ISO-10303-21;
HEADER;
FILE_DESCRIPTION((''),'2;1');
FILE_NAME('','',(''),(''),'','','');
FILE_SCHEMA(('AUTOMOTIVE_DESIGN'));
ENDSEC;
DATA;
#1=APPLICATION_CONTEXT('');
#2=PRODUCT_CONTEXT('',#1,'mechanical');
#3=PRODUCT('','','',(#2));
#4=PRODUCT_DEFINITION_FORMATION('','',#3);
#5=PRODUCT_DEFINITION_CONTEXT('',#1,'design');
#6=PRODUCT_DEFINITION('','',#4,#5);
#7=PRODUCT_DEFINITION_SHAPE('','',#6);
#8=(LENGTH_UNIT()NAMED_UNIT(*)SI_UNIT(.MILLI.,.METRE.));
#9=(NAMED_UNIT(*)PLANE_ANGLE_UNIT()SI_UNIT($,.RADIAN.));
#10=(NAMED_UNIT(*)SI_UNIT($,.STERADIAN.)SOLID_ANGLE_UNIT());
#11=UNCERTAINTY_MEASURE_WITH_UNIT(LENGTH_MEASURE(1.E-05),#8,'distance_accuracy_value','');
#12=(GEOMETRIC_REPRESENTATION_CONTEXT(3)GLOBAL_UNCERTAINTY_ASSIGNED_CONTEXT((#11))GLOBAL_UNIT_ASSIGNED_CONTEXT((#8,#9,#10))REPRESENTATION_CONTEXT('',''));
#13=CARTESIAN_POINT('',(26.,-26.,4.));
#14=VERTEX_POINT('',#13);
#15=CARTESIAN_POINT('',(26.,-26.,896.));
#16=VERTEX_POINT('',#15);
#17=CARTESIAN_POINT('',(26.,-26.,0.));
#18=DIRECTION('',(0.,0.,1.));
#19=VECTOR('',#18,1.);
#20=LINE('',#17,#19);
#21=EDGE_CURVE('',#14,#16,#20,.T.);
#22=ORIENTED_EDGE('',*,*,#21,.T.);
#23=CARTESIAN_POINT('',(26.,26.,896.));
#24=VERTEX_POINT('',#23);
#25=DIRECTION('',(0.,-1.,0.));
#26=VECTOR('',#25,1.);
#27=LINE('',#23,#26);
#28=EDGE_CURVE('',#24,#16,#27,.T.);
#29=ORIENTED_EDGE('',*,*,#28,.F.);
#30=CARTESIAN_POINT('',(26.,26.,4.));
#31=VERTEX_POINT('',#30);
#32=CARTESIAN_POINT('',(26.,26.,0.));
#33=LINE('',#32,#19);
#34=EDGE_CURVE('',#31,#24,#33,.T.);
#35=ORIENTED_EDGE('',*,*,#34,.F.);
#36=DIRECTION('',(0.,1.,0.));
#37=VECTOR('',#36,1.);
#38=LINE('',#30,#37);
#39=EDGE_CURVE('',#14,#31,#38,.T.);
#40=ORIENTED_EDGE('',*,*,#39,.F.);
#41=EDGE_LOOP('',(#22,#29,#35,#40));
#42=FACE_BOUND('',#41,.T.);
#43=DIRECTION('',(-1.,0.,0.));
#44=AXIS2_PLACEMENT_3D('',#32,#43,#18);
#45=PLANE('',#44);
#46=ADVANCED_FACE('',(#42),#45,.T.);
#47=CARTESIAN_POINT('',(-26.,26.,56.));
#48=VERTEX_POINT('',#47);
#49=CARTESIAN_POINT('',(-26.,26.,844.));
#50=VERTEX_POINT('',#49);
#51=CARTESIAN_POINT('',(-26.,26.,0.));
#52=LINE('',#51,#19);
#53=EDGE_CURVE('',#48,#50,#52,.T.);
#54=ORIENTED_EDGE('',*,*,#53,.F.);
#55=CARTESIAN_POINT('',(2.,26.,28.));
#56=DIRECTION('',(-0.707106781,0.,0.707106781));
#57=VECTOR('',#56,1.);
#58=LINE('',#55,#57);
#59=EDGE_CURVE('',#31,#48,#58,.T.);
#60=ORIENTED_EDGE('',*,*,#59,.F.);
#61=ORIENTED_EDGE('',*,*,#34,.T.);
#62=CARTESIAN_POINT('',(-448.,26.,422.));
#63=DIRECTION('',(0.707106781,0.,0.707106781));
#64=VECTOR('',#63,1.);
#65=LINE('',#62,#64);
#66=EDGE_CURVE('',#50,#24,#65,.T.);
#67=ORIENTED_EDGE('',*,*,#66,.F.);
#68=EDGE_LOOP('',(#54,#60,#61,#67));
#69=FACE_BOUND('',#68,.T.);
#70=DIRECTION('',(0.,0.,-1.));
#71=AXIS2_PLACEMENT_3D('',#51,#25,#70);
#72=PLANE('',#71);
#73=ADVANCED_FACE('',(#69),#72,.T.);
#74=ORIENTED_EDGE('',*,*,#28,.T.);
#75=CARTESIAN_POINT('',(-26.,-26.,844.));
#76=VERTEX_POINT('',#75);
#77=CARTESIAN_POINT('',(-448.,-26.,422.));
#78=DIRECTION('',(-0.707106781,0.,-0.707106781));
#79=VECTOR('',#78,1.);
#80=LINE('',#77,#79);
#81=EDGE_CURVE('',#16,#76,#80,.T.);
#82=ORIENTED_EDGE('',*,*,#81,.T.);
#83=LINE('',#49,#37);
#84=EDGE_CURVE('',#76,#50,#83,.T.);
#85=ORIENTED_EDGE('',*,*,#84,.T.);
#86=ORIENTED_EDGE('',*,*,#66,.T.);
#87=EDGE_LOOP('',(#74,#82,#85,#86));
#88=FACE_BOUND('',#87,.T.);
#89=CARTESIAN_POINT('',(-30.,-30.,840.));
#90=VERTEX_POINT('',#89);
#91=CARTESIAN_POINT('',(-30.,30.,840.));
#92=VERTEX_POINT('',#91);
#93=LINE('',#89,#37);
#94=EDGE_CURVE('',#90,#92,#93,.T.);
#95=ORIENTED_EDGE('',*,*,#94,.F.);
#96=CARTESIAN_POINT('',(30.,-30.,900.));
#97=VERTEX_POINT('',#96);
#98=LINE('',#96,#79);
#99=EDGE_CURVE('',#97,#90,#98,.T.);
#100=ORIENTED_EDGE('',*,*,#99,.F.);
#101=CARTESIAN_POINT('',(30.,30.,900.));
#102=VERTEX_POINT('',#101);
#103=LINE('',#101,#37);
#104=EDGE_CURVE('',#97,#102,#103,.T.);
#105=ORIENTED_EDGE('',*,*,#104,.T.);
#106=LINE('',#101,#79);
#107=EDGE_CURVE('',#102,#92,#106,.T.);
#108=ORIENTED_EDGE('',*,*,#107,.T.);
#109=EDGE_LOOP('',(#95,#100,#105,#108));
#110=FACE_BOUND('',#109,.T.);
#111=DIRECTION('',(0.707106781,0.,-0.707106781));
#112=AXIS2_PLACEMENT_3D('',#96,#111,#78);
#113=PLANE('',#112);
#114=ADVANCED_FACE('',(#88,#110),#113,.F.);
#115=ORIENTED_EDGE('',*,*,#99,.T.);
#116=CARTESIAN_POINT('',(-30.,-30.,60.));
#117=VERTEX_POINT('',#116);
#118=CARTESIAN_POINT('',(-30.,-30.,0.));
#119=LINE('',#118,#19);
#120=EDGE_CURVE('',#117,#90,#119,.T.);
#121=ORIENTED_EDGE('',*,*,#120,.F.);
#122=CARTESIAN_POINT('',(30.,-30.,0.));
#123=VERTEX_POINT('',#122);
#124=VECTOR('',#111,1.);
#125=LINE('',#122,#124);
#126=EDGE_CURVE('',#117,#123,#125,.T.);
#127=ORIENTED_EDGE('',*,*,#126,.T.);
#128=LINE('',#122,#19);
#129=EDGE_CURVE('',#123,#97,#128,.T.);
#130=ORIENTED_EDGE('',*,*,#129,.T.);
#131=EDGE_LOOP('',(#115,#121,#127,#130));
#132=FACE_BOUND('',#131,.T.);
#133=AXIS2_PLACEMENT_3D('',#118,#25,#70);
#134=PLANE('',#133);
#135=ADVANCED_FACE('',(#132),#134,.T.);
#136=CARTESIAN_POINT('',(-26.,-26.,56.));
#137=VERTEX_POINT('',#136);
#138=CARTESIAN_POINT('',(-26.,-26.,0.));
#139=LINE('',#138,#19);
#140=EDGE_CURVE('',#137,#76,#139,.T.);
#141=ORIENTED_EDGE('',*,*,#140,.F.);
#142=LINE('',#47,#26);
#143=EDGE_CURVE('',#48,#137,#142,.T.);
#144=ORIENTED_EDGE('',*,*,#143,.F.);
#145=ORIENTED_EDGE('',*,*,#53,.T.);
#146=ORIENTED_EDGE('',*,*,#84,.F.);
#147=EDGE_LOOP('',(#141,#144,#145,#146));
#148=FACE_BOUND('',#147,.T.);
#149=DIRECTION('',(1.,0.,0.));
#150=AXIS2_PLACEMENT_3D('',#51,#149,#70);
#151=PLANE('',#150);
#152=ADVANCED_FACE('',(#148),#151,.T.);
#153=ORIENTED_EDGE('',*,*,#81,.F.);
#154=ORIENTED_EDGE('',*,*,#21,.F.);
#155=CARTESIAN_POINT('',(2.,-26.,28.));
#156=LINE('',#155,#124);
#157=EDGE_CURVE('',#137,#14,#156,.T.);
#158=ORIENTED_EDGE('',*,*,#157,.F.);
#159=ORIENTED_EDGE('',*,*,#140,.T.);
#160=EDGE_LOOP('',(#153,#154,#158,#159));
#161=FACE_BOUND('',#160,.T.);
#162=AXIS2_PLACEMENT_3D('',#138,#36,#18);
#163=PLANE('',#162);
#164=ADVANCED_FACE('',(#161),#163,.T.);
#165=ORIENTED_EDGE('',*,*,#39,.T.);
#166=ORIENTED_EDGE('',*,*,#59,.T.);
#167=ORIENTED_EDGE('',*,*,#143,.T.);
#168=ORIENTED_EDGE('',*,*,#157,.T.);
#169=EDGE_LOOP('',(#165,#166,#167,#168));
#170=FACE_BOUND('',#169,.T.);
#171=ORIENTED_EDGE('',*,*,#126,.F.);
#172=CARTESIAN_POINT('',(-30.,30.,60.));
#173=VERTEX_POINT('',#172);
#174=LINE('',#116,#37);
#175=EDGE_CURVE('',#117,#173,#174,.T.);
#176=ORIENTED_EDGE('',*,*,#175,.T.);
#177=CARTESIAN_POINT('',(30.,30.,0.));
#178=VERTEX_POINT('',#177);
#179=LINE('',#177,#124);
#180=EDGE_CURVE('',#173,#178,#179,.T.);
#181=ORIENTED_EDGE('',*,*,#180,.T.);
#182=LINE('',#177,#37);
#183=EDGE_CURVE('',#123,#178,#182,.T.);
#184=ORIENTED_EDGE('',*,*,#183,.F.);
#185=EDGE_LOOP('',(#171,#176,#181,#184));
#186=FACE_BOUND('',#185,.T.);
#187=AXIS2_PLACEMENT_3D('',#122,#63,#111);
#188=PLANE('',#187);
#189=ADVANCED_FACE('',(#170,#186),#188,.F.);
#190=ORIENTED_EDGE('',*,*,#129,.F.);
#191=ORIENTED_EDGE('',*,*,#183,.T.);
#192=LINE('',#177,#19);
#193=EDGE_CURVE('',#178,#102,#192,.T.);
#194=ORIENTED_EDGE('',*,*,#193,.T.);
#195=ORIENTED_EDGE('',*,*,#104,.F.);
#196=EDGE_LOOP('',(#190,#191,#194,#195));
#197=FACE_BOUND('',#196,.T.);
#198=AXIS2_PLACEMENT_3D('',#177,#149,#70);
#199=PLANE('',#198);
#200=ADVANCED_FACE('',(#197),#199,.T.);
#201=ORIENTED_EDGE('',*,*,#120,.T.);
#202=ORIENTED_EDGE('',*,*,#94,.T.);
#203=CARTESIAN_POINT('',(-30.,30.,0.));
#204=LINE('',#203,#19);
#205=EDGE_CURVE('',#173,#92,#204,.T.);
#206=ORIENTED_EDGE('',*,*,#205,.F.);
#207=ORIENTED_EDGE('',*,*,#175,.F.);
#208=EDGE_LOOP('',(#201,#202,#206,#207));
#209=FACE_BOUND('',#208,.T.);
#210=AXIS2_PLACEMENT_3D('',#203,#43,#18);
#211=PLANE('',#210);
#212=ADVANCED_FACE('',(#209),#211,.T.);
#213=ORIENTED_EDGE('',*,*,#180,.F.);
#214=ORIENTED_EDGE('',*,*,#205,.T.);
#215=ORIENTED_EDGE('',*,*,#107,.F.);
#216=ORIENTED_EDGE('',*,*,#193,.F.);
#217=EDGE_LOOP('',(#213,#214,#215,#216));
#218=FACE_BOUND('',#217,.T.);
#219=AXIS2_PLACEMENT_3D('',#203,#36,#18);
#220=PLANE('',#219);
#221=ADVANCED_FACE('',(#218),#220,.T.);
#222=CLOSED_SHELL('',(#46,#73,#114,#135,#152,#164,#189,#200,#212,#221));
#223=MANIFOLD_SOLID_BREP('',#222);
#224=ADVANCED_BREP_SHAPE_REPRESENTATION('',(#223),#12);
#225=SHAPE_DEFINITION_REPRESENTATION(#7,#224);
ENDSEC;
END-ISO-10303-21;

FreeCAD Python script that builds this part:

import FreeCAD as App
import Part
import Sketcher
from FreeCAD import Vector

doc = App.newDocument("Part")
body = doc.addObject("PartDesign::Body", "Body")

sketch1 = body.newObject("Sketcher::SketchObject", "Sketch")
sketch1.AttachmentSupport = (doc.getObject("XY_Plane"), [""])
sketch1.MapMode = "FlatFace"
sketch1.addGeometry(Part.LineSegment(Vector(-30, 30, 0), Vector(-30, -30, 0)), False)
sketch1.addGeometry(Part.LineSegment(Vector(-30, -30, 0), Vector(30, -30, 0)), False)
sketch1.addGeometry(Part.LineSegment(Vector(30, -30, 0), Vector(30, 30, 0)), False)
sketch1.addGeometry(Part.LineSegment(Vector(30, 30, 0), Vector(-30, 30, 0)), False)
sketch1.addGeometry(Part.LineSegment(Vector(26, -26, 0), Vector(-26, -26, 0)), False)
sketch1.addGeometry(Part.LineSegment(Vector(-26, -26, 0), Vector(-26, 26, 0)), False)
sketch1.addGeometry(Part.LineSegment(Vector(-26, 26, 0), Vector(26, 26, 0)), False)
sketch1.addGeometry(Part.LineSegment(Vector(26, 26, 0), Vector(26, -26, 0)), False)
sketch1.addConstraint(Sketcher.Constraint("Coincident", 0, 2, 1, 1))
sketch1.addConstraint(Sketcher.Constraint("Coincident", 1, 2, 2, 1))
sketch1.addConstraint(Sketcher.Constraint("Coincident", 2, 2, 3, 1))
sketch1.addConstraint(Sketcher.Constraint("Coincident", 3, 2, 0, 1))
sketch1.addConstraint(Sketcher.Constraint("Coincident", 4, 2, 5, 1))
sketch1.addConstraint(Sketcher.Constraint("Coincident", 5, 2, 6, 1))
sketch1.addConstraint(Sketcher.Constraint("Coincident", 6, 2, 7, 1))
sketch1.addConstraint(Sketcher.Constraint("Coincident", 7, 2, 4, 1))
sketch1.addConstraint(Sketcher.Constraint("Vertical", 0))
sketch1.addConstraint(Sketcher.Constraint("Horizontal", 1))
sketch1.addConstraint(Sketcher.Constraint("Vertical", 2))
sketch1.addConstraint(Sketcher.Constraint("Horizontal", 3))
sketch1.addConstraint(Sketcher.Constraint("Horizontal", 4))
sketch1.addConstraint(Sketcher.Constraint("Vertical", 5))
sketch1.addConstraint(Sketcher.Constraint("Horizontal", 6))
sketch1.addConstraint(Sketcher.Constraint("Vertical", 7))
sketch1.addConstraint(Sketcher.Constraint("Symmetric", 0, 2, 2, 2, -1, 1))
sketch1.addConstraint(Sketcher.Constraint("Symmetric", 4, 2, 6, 2, -1, 1))
sketch1.addConstraint(Sketcher.Constraint("Equal", 3, 0))
sketch1.addConstraint(Sketcher.Constraint("Equal", 6, 5))
sketch1.addConstraint(Sketcher.Constraint("DistanceX", 1, 1, 1, 2, 60.0))
sketch1.addConstraint(Sketcher.Constraint("DistanceX", 4, 2, 4, 1, 52.0))

sketch2 = body.newObject("Sketcher::SketchObject", "Sketch001")
sketch2.AttachmentSupport = (doc.getObject("XZ_Plane"), [""])
sketch2.MapMode = "FlatFace"
sketch2.addGeometry(Part.BSplineCurve([Vector(0, 0, 0), Vector(0, 900, 0)], [2, 2], [0, 1], False, 1, [1, 1], False), False)
sketch2.addConstraint(Sketcher.Constraint("Block", 0))
doc.recompute()

additivepipe = body.newObject("PartDesign::AdditivePipe", "AdditivePipe")
additivepipe.Profile = sketch1
additivepipe.Spine = (sketch2, ["Edge1"])

sketch3 = body.newObject("Sketcher::SketchObject", "Sketch002")
sketch3.AttachmentSupport = (doc.getObject("XZ_Plane"), [""])
sketch3.MapMode = "FlatFace"
sketch3.AttachmentOffset = App.Placement(Vector(0, 0, -30), App.Rotation())
sketch3.addGeometry(Part.LineSegment(Vector(-30, 60, 0), Vector(30, 0, 0)), False)
sketch3.addGeometry(Part.LineSegment(Vector(30, 0, 0), Vector(-30, 0, 0)), False)
sketch3.addGeometry(Part.LineSegment(Vector(-30, 0, 0), Vector(-30, 60, 0)), False)
sketch3.addGeometry(Part.LineSegment(Vector(30, 900, 0), Vector(-30, 840, 0)), False)
sketch3.addGeometry(Part.LineSegment(Vector(-30, 840, 0), Vector(-30, 900, 0)), False)
sketch3.addGeometry(Part.LineSegment(Vector(-30, 900, 0), Vector(30, 900, 0)), False)
sketch3.addConstraint(Sketcher.Constraint("Coincident", 0, 2, 1, 1))
sketch3.addConstraint(Sketcher.Constraint("Coincident", 1, 2, 2, 1))
sketch3.addConstraint(Sketcher.Constraint("Coincident", 2, 2, 0, 1))
sketch3.addConstraint(Sketcher.Constraint("Coincident", 3, 2, 4, 1))
sketch3.addConstraint(Sketcher.Constraint("Coincident", 4, 2, 5, 1))
sketch3.addConstraint(Sketcher.Constraint("Coincident", 5, 2, 3, 1))
sketch3.addConstraint(Sketcher.Constraint("Horizontal", 1))
sketch3.addConstraint(Sketcher.Constraint("Vertical", 2))
sketch3.addConstraint(Sketcher.Constraint("Vertical", 4))
sketch3.addConstraint(Sketcher.Constraint("Horizontal", 5))
sketch3.addConstraint(Sketcher.Constraint("Symmetric", 0, 2, 1, 2, -1, 1))
sketch3.addConstraint(Sketcher.Constraint("Perpendicular", 0, 3))
sketch3.addConstraint(Sketcher.Constraint("Vertical", 2, 2, 3, 2))
sketch3.addConstraint(Sketcher.Constraint("Vertical", 0, 2, 5, 2))
sketch3.addConstraint(Sketcher.Constraint("Equal", 5, 2))
sketch3.addConstraint(Sketcher.Constraint("DistanceX", 1, 2, 1, 1, 60.0))
sketch3.addConstraint(Sketcher.Constraint("DistanceY", -1, 1, 3, 2, 840.0))
pocket1 = body.newObject("PartDesign::Pocket", "Pocket")
pocket1.Profile = sketch3
pocket1.Type = "ThroughAll"
pocket1.Reversed = True

doc.recompute()
